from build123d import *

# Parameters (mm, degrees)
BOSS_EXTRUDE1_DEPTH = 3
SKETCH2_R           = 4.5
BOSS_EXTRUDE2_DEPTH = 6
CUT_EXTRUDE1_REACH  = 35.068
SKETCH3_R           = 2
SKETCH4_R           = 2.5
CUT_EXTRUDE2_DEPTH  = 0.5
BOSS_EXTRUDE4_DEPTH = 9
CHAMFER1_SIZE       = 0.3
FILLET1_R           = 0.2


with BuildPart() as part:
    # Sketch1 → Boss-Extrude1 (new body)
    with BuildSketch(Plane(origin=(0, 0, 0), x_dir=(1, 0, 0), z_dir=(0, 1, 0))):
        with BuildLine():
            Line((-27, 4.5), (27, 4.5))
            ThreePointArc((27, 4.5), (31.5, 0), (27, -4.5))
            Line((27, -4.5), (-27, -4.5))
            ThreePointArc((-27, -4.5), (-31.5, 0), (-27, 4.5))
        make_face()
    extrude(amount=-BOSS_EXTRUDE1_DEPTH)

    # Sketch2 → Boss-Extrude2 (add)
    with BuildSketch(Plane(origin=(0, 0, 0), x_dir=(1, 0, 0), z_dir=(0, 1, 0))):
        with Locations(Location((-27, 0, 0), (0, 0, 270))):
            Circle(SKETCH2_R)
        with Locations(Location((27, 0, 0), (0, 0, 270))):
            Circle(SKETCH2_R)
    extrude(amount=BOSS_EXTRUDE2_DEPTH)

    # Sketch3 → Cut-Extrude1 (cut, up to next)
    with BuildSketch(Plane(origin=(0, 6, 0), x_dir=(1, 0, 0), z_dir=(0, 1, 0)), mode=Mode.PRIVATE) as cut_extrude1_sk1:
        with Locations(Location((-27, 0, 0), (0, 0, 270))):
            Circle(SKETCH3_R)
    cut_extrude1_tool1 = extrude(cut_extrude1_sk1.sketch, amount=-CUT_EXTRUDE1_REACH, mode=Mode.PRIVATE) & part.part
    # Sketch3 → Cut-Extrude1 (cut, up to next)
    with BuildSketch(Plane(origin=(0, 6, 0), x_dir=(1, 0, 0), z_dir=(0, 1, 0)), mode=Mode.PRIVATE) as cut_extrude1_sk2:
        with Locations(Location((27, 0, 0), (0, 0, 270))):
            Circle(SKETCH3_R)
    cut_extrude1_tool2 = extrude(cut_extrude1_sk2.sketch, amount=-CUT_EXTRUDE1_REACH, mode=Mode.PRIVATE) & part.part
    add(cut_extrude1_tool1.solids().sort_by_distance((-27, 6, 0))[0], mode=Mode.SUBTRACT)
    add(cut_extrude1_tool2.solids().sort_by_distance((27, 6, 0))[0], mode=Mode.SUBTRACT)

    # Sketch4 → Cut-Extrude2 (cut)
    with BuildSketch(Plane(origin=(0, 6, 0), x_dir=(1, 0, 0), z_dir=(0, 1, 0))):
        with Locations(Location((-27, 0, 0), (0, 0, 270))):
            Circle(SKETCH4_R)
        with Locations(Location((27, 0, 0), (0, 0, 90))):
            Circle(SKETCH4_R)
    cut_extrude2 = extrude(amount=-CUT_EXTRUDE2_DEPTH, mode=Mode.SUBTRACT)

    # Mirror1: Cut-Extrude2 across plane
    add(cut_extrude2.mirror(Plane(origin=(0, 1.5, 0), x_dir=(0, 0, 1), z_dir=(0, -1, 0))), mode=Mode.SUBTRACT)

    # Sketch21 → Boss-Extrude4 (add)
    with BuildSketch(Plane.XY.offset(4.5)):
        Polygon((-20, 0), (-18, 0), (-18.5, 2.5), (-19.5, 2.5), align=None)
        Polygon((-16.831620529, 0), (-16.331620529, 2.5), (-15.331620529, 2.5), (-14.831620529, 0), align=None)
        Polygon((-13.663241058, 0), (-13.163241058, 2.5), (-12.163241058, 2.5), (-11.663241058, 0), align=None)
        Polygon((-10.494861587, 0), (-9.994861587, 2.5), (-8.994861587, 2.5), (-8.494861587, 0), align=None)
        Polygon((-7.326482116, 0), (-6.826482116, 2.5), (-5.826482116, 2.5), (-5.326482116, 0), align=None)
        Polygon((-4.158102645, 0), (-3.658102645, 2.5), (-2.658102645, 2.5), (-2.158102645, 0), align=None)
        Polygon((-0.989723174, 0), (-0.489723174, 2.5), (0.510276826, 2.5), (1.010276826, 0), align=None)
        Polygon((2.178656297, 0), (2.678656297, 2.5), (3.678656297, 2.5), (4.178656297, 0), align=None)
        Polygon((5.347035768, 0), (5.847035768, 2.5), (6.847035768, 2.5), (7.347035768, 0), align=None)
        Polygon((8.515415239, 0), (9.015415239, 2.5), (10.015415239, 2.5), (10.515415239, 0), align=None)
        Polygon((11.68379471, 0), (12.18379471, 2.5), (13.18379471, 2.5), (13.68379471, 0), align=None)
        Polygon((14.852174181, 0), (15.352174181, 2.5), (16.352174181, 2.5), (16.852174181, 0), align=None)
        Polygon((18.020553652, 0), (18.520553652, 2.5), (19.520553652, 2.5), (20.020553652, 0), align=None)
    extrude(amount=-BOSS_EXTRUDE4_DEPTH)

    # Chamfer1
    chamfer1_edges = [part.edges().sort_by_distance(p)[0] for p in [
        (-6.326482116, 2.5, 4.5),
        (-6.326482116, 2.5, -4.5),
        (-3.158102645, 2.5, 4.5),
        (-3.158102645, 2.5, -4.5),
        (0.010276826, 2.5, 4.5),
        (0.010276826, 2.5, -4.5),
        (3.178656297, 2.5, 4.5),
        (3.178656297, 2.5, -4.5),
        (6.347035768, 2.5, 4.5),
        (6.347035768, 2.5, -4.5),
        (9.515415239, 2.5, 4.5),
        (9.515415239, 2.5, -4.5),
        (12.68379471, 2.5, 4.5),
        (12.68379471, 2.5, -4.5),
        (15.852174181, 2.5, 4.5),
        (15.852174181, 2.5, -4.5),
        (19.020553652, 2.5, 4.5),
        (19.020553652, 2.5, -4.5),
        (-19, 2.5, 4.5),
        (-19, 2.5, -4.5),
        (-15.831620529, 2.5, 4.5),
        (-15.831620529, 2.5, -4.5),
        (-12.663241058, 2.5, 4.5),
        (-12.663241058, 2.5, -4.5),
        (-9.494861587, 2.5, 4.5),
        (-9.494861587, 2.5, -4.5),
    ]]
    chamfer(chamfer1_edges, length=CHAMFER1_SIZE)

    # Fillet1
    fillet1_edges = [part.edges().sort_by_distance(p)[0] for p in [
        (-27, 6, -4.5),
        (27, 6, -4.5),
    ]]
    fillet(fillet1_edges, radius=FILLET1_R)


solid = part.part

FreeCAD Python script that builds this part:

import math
import FreeCAD as App
import Part
import Sketcher
from FreeCAD import Vector


def edges_at(feature, points):
    """Names of the edges that pass closest to the given points."""
    edges = feature.Shape.Edges
    near = lambda p: min(range(len(edges)), key=lambda i: edges[i].distToShape(Part.Vertex(*p))[0])
    return sorted({f"Edge{near(p) + 1}" for p in points})

doc = App.newDocument("Part")
body = doc.addObject("PartDesign::Body", "Body")

# Sketch on XZ plane
sketch1 = body.newObject("Sketcher::SketchObject", "Sketch")
sketch1.AttachmentSupport = (doc.getObject("XZ_Plane"), [""])
sketch1.MapMode = "FlatFace"
sketch1.addGeometry(Part.LineSegment(Vector(27, -4.5, 0), Vector(-27, -4.5, 0)), False)
sketch1.addGeometry(Part.ArcOfCircle(Part.Circle(Vector(-27, 0, 0), Vector(0, 0, 1), 4.5), math.radians(90), math.radians(270)), False)
sketch1.addGeometry(Part.LineSegment(Vector(-27, 4.5, 0), Vector(27, 4.5, 0)), False)
sketch1.addGeometry(Part.ArcOfCircle(Part.Circle(Vector(27, 0, 0), Vector(0, 0, 1), 4.5), math.radians(-90), math.radians(90)), False)
sketch1.addConstraint(Sketcher.Constraint("Tangent", 0, 2, 1, 2))
sketch1.addConstraint(Sketcher.Constraint("Tangent", 1, 1, 2, 1))
sketch1.addConstraint(Sketcher.Constraint("Tangent", 2, 2, 3, 2))
sketch1.addConstraint(Sketcher.Constraint("Tangent", 3, 1, 0, 1))
sketch1.addConstraint(Sketcher.Constraint("Horizontal", 0))
sketch1.addConstraint(Sketcher.Constraint("Horizontal", 2))
sketch1.addConstraint(Sketcher.Constraint("Symmetric", 1, 3, 3, 3, -1, 1))
sketch1.addConstraint(Sketcher.Constraint("Radius", 1, 4.5))
sketch1.addConstraint(Sketcher.Constraint("DistanceX", 0, 2, 0, 1, 54.0))
pad1 = body.newObject("PartDesign::Pad", "Pad")
pad1.Profile = sketch1
pad1.Length = 3

# Sketch on XZ plane
sketch2 = body.newObject("Sketcher::SketchObject", "Sketch001")
sketch2.AttachmentSupport = (doc.getObject("XZ_Plane"), [""])
sketch2.MapMode = "FlatFace"
sketch2.addGeometry(Part.Circle(Vector(-27, 0, 0), Vector(0, 0, 1), 4.5), False)
sketch2.addGeometry(Part.Circle(Vector(27, 0, 0), Vector(0, 0, 1), 4.5), False)
sketch2.addConstraint(Sketcher.Constraint("Equal", 0, 1))
sketch2.addConstraint(Sketcher.Constraint("Symmetric", 0, 3, 1, 3, -1, 1))
sketch2.addConstraint(Sketcher.Constraint("PointOnObject", 0, 3, -1))
sketch2.addConstraint(Sketcher.Constraint("Diameter", 0, 9.0))
sketch2.addConstraint(Sketcher.Constraint("DistanceX", 0, 3, -1, 1, 27.0))
pad2 = body.newObject("PartDesign::Pad", "Pad001")
pad2.Profile = sketch2
pad2.Length = 6
pad2.Reversed = True

# Sketch on XZ plane
sketch3 = body.newObject("Sketcher::SketchObject", "Sketch002")
sketch3.AttachmentSupport = (doc.getObject("XZ_Plane"), [""])
sketch3.MapMode = "FlatFace"
sketch3.AttachmentOffset = App.Placement(Vector(0, 0, -6), App.Rotation())
sketch3.addGeometry(Part.Circle(Vector(-27, 0, 0), Vector(0, 0, 1), 2), False)
sketch3.addConstraint(Sketcher.Constraint("PointOnObject", 0, 3, -1))
sketch3.addConstraint(Sketcher.Constraint("Diameter", 0, 4.0))
sketch3.addConstraint(Sketcher.Constraint("DistanceX", 0, 3, -1, 1, 27.0))
pocket1 = body.newObject("PartDesign::Pocket", "Pocket")
pocket1.Profile = sketch3
pocket1.Type = "UpToFirst"
pocket1.Reversed = True

# Sketch on XZ plane
sketch4 = body.newObject("Sketcher::SketchObject", "Sketch003")
sketch4.AttachmentSupport = (doc.getObject("XZ_Plane"), [""])
sketch4.MapMode = "FlatFace"
sketch4.AttachmentOffset = App.Placement(Vector(0, 0, -6), App.Rotation())
sketch4.addGeometry(Part.Circle(Vector(27, 0, 0), Vector(0, 0, 1), 2), False)
sketch4.addConstraint(Sketcher.Constraint("PointOnObject", 0, 3, -1))
sketch4.addConstraint(Sketcher.Constraint("Diameter", 0, 4.0))
sketch4.addConstraint(Sketcher.Constraint("DistanceX", -1, 1, 0, 3, 27.0))
pocket2 = body.newObject("PartDesign::Pocket", "Pocket001")
pocket2.Profile = sketch4
pocket2.Type = "UpToFirst"
pocket2.Reversed = True

# Sketch on XZ plane
sketch5 = body.newObject("Sketcher::SketchObject", "Sketch004")
sketch5.AttachmentSupport = (doc.getObject("XZ_Plane"), [""])
sketch5.MapMode = "FlatFace"
sketch5.AttachmentOffset = App.Placement(Vector(0, 0, -6), App.Rotation())
sketch5.addGeometry(Part.Circle(Vector(-27, 0, 0), Vector(0, 0, 1), 2.5), False)
sketch5.addGeometry(Part.Circle(Vector(27, 0, 0), Vector(0, 0, 1), 2.5), False)
sketch5.addConstraint(Sketcher.Constraint("Equal", 0, 1))
sketch5.addConstraint(Sketcher.Constraint("Symmetric", 0, 3, 1, 3, -1, 1))
sketch5.addConstraint(Sketcher.Constraint("PointOnObject", 0, 3, -1))
sketch5.addConstraint(Sketcher.Constraint("Diameter", 0, 5.0))
sketch5.addConstraint(Sketcher.Constraint("DistanceX", 0, 3, -1, 1, 27.0))
pocket3 = body.newObject("PartDesign::Pocket", "Pocket002")
pocket3.Profile = sketch5
pocket3.Length = 0.5
pocket3.Reversed = True
doc.recompute()

datumplane = body.newObject("PartDesign::Plane", "DatumPlane")
datumplane.AttachmentSupport = (doc.getObject("XZ_Plane"), [""])
datumplane.MapMode = "FlatFace"
datumplane.AttachmentOffset = App.Placement(Vector(0, 0, -1.5), App.Rotation())
mirrored = body.newObject("PartDesign::Mirrored", "Mirrored")
mirrored.Originals = [pocket3]
mirrored.MirrorPlane = (datumplane, [""])
body.Tip = mirrored

# Sketch on XY plane
sketch6 = body.newObject("Sketcher::SketchObject", "Sketch005")
sketch6.AttachmentSupport = (doc.getObject("XY_Plane"), [""])
sketch6.MapMode = "FlatFace"
sketch6.AttachmentOffset = App.Placement(Vector(0, 0, 4.5), App.Rotation())
sketch6.addGeometry(Part.LineSegment(Vector(-20, 0, 0), Vector(-18, 0, 0)), False)
sketch6.addGeometry(Part.LineSegment(Vector(-18, 0, 0), Vector(-18.5, 2.5, 0)), False)
sketch6.addGeometry(Part.LineSegment(Vector(-18.5, 2.5, 0), Vector(-19.5, 2.5, 0)), False)
sketch6.addGeometry(Part.LineSegment(Vector(-19.5, 2.5, 0), Vector(-20, 0, 0)), False)
sketch6.addGeometry(Part.LineSegment(Vector(-16.3, 2.5, 0), Vector(-16.8, 0, 0)), False)
sketch6.addGeometry(Part.LineSegment(Vector(-16.8, 0, 0), Vector(-14.8, 0, 0)), False)
sketch6.addGeometry(Part.LineSegment(Vector(-14.8, 0, 0), Vector(-15.3, 2.5, 0)), False)
sketch6.addGeometry(Part.LineSegment(Vector(-15.3, 2.5, 0), Vector(-16.3, 2.5, 0)), False)
sketch6.addGeometry(Part.LineSegment(Vector(-13.2, 2.5, 0), Vector(-13.7, 0, 0)), False)
sketch6.addGeometry(Part.LineSegment(Vector(-13.7, 0, 0), Vector(-11.7, 0, 0)), False)
sketch6.addGeometry(Part.LineSegment(Vector(-11.7, 0, 0), Vector(-12.2, 2.5, 0)), False)
sketch6.addGeometry(Part.LineSegment(Vector(-12.2, 2.5, 0), Vector(-13.2, 2.5, 0)), False)
sketch6.addGeometry(Part.LineSegment(Vector(-10, 2.5, 0), Vector(-10.5, 0, 0)), False)
sketch6.addGeometry(Part.LineSegment(Vector(-10.5, 0, 0), Vector(-8.5, 0, 0)), False)
sketch6.addGeometry(Part.LineSegment(Vector(-8.5, 0, 0), Vector(-9, 2.5, 0)), False)
sketch6.addGeometry(Part.LineSegment(Vector(-9, 2.5, 0), Vector(-10, 2.5, 0)), False)
sketch6.addGeometry(Part.LineSegment(Vector(-6.8, 2.5, 0), Vector(-7.3, 0, 0)), False)
sketch6.addGeometry(Part.LineSegment(Vector(-7.3, 0, 0), Vector(-5.3, 0, 0)), False)
sketch6.addGeometry(Part.LineSegment(Vector(-5.3, 0, 0), Vector(-5.8, 2.5, 0)), False)
sketch6.addGeometry(Part.LineSegment(Vector(-5.8, 2.5, 0), Vector(-6.8, 2.5, 0)), False)
sketch6.addGeometry(Part.LineSegment(Vector(-3.7, 2.5, 0), Vector(-4.2, 0, 0)), False)
sketch6.addGeometry(Part.LineSegment(Vector(-4.2, 0, 0), Vector(-2.2, 0, 0)), False)
sketch6.addGeometry(Part.LineSegment(Vector(-2.2, 0, 0), Vector(-2.7, 2.5, 0)), False)
sketch6.addGeometry(Part.LineSegment(Vector(-2.7, 2.5, 0), Vector(-3.7, 2.5, 0)), False)
sketch6.addGeometry(Part.LineSegment(Vector(-0.5, 2.5, 0), Vector(-1, 0, 0)), False)
sketch6.addGeometry(Part.LineSegment(Vector(-1, 0, 0), Vector(1, 0, 0)), False)
sketch6.addGeometry(Part.LineSegment(Vector(1, 0, 0), Vector(0.5, 2.5, 0)), False)
sketch6.addGeometry(Part.LineSegment(Vector(0.5, 2.5, 0), Vector(-0.5, 2.5, 0)), False)
sketch6.addGeometry(Part.LineSegment(Vector(2.7, 2.5, 0), Vector(2.2, 0, 0)), False)
sketch6.addGeometry(Part.LineSegment(Vector(2.2, 0, 0), Vector(4.2, 0, 0)), False)
sketch6.addGeometry(Part.LineSegment(Vector(4.2, 0, 0), Vector(3.7, 2.5, 0)), False)
sketch6.addGeometry(Part.LineSegment(Vector(3.7, 2.5, 0), Vector(2.7, 2.5, 0)), False)
sketch6.addGeometry(Part.LineSegment(Vector(5.8, 2.5, 0), Vector(5.3, 0, 0)), False)
sketch6.addGeometry(Part.LineSegment(Vector(5.3, 0, 0), Vector(7.3, 0, 0)), False)
sketch6.addGeometry(Part.LineSegment(Vector(7.3, 0, 0), Vector(6.8, 2.5, 0)), False)
sketch6.addGeometry(Part.LineSegment(Vector(6.8, 2.5, 0), Vector(5.8, 2.5, 0)), False)
sketch6.addGeometry(Part.LineSegment(Vector(9, 2.5, 0), Vector(8.5, 0, 0)), False)
sketch6.addGeometry(Part.LineSegment(Vector(8.5, 0, 0), Vector(10.5, 0, 0)), False)
sketch6.addGeometry(Part.LineSegment(Vector(10.5, 0, 0), Vector(10, 2.5, 0)), False)
sketch6.addGeometry(Part.LineSegment(Vector(10, 2.5, 0), Vector(9, 2.5, 0)), False)
sketch6.addGeometry(Part.LineSegment(Vector(12.2, 2.5, 0), Vector(11.7, 0, 0)), False)
sketch6.addGeometry(Part.LineSegment(Vector(11.7, 0, 0), Vector(13.7, 0, 0)), False)
sketch6.addGeometry(Part.LineSegment(Vector(13.7, 0, 0), Vector(13.2, 2.5, 0)), False)
sketch6.addGeometry(Part.LineSegment(Vector(13.2, 2.5, 0), Vector(12.2, 2.5, 0)), False)
sketch6.addGeometry(Part.LineSegment(Vector(15.4, 2.5, 0), Vector(14.9, 0, 0)), False)
sketch6.addGeometry(Part.LineSegment(Vector(14.9, 0, 0), Vector(16.9, 0, 0)), False)
sketch6.addGeometry(Part.LineSegment(Vector(16.9, 0, 0), Vector(16.4, 2.5, 0)), False)
sketch6.addGeometry(Part.LineSegment(Vector(16.4, 2.5, 0), Vector(15.4, 2.5, 0)), False)
sketch6.addGeometry(Part.LineSegment(Vector(18.5, 2.5, 0), Vector(18, 0, 0)), False)
sketch6.addGeometry(Part.LineSegment(Vector(18, 0, 0), Vector(20, 0, 0)), False)
sketch6.addGeometry(Part.LineSegment(Vector(20, 0, 0), Vector(19.5, 2.5, 0)), False)
sketch6.addGeometry(Part.LineSegment(Vector(19.5, 2.5, 0), Vector(18.5, 2.5, 0)), False)
sketch6.addConstraint(Sketcher.Constraint("Coincident", 0, 2, 1, 1))
sketch6.addConstraint(Sketcher.Constraint("Coincident", 1, 2, 2, 1))
sketch6.addConstraint(Sketcher.Constraint("Coincident", 2, 2, 3, 1))
sketch6.addConstraint(Sketcher.Constraint("Coincident", 3, 2, 0, 1))
sketch6.addConstraint(Sketcher.Constraint("Coincident", 4, 2, 5, 1))
sketch6.addConstraint(Sketcher.Constraint("Coincident", 5, 2, 6, 1))
sketch6.addConstraint(Sketcher.Constraint("Coincident", 6, 2, 7, 1))
sketch6.addConstraint(Sketcher.Constraint("Coincident", 7, 2, 4, 1))
sketch6.addConstraint(Sketcher.Constraint("Coincident", 8, 2, 9, 1))
sketch6.addConstraint(Sketcher.Constraint("Coincident", 9, 2, 10, 1))
sketch6.addConstraint(Sketcher.Constraint("Coincident", 10, 2, 11, 1))
sketch6.addConstraint(Sketcher.Constraint("Coincident", 11, 2, 8, 1))
sketch6.addConstraint(Sketcher.Constraint("Coincident", 12, 2, 13, 1))
sketch6.addConstraint(Sketcher.Constraint("Coincident", 13, 2, 14, 1))
sketch6.addConstraint(Sketcher.Constraint("Coincident", 14, 2, 15, 1))
sketch6.addConstraint(Sketcher.Constraint("Coincident", 15, 2, 12, 1))
sketch6.addConstraint(Sketcher.Constraint("Coincident", 16, 2, 17, 1))
sketch6.addConstraint(Sketcher.Constraint("Coincident", 17, 2, 18, 1))
sketch6.addConstraint(Sketcher.Constraint("Coincident", 18, 2, 19, 1))
sketch6.addConstraint(Sketcher.Constraint("Coincident", 19, 2, 16, 1))
sketch6.addConstraint(Sketcher.Constraint("Coincident", 20, 2, 21, 1))
sketch6.addConstraint(Sketcher.Constraint("Coincident", 21, 2, 22, 1))
sketch6.addConstraint(Sketcher.Constraint("Coincident", 22, 2, 23, 1))
sketch6.addConstraint(Sketcher.Constraint("Coincident", 23, 2, 20, 1))
sketch6.addConstraint(Sketcher.Constraint("Coincident", 24, 2, 25, 1))
sketch6.addConstraint(Sketcher.Constraint("Coincident", 25, 2, 26, 1))
sketch6.addConstraint(Sketcher.Constraint("Coincident", 26, 2, 27, 1))
sketch6.addConstraint(Sketcher.Constraint("Coincident", 27, 2, 24, 1))
sketch6.addConstraint(Sketcher.Constraint("Coincident", 28, 2, 29, 1))
sketch6.addConstraint(Sketcher.Constraint("Coincident", 29, 2, 30, 1))
sketch6.addConstraint(Sketcher.Constraint("Coincident", 30, 2, 31, 1))
sketch6.addConstraint(Sketcher.Constraint("Coincident", 31, 2, 28, 1))
sketch6.addConstraint(Sketcher.Constraint("Coincident", 32, 2, 33, 1))
sketch6.addConstraint(Sketcher.Constraint("Coincident", 33, 2, 34, 1))
sketch6.addConstraint(Sketcher.Constraint("Coincident", 34, 2, 35, 1))
sketch6.addConstraint(Sketcher.Constraint("Coincident", 35, 2, 32, 1))
sketch6.addConstraint(Sketcher.Constraint("Coincident", 36, 2, 37, 1))
sketch6.addConstraint(Sketcher.Constraint("Coincident", 37, 2, 38, 1))
sketch6.addConstraint(Sketcher.Constraint("Coincident", 38, 2, 39, 1))
sketch6.addConstraint(Sketcher.Constraint("Coincident", 39, 2, 36, 1))
sketch6.addConstraint(Sketcher.Constraint("Coincident", 40, 2, 41, 1))
sketch6.addConstraint(Sketcher.Constraint("Coincident", 41, 2, 42, 1))
sketch6.addConstraint(Sketcher.Constraint("Coincident", 42, 2, 43, 1))
sketch6.addConstraint(Sketcher.Constraint("Coincident", 43, 2, 40, 1))
sketch6.addConstraint(Sketcher.Constraint("Coincident", 44, 2, 45, 1))
sketch6.addConstraint(Sketcher.Constraint("Coincident", 45, 2, 46, 1))
sketch6.addConstraint(Sketcher.Constraint("Coincident", 46, 2, 47, 1))
sketch6.addConstraint(Sketcher.Constraint("Coincident", 47, 2, 44, 1))
sketch6.addConstraint(Sketcher.Constraint("Coincident", 48, 2, 49, 1))
sketch6.addConstraint(Sketcher.Constraint("Coincident", 49, 2, 50, 1))
sketch6.addConstraint(Sketcher.Constraint("Coincident", 50, 2, 51, 1))
sketch6.addConstraint(Sketcher.Constraint("Coincident", 51, 2, 48, 1))
sketch6.addConstraint(Sketcher.Constraint("Horizontal", 0))
sketch6.addConstraint(Sketcher.Constraint("Horizontal", 2))
sketch6.addConstraint(Sketcher.Constraint("Horizontal", 5))
sketch6.addConstraint(Sketcher.Constraint("Horizontal", 7))
sketch6.addConstraint(Sketcher.Constraint("Horizontal", 9))
sketch6.addConstraint(Sketcher.Constraint("Horizontal", 11))
sketch6.addConstraint(Sketcher.Constraint("Horizontal", 13))
sketch6.addConstraint(Sketcher.Constraint("Horizontal", 15))
sketch6.addConstraint(Sketcher.Constraint("Horizontal", 17))
sketch6.addConstraint(Sketcher.Constraint("Horizontal", 19))
sketch6.addConstraint(Sketcher.Constraint("Horizontal", 21))
sketch6.addConstraint(Sketcher.Constraint("Horizontal", 23))
sketch6.addConstraint(Sketcher.Constraint("Horizontal", 25))
sketch6.addConstraint(Sketcher.Constraint("Horizontal", 27))
sketch6.addConstraint(Sketcher.Constraint("Horizontal", 29))
sketch6.addConstraint(Sketcher.Constraint("Horizontal", 31))
sketch6.addConstraint(Sketcher.Constraint("Horizontal", 33))
sketch6.addConstraint(Sketcher.Constraint("Horizontal", 35))
sketch6.addConstraint(Sketcher.Constraint("Horizontal", 37))
sketch6.addConstraint(Sketcher.Constraint("Horizontal", 39))
sketch6.addConstraint(Sketcher.Constraint("Horizontal", 41))
sketch6.addConstraint(Sketcher.Constraint("Horizontal", 43))
sketch6.addConstraint(Sketcher.Constraint("Horizontal", 45))
sketch6.addConstraint(Sketcher.Constraint("Horizontal", 47))
sketch6.addConstraint(Sketcher.Constraint("Horizontal", 49))
sketch6.addConstraint(Sketcher.Constraint("Horizontal", 51))
sketch6.addConstraint(Sketcher.Constraint("PointOnObject", 0, 2, -1))
sketch6.addConstraint(Sketcher.Constraint("PointOnObject", 4, 2, -1))
sketch6.addConstraint(Sketcher.Constraint("PointOnObject", 8, 2, -1))
sketch6.addConstraint(Sketcher.Constraint("PointOnObject", 12, 2, -1))
sketch6.addConstraint(Sketcher.Constraint("PointOnObject", 16, 2, -1))
sketch6.addConstraint(Sketcher.Constraint("PointOnObject", 20, 2, -1))
sketch6.addConstraint(Sketcher.Constraint("PointOnObject", 24, 2, -1))
sketch6.addConstraint(Sketcher.Constraint("PointOnObject", 28, 2, -1))
sketch6.addConstraint(Sketcher.Constraint("PointOnObject", 32, 2, -1))
sketch6.addConstraint(Sketcher.Constraint("PointOnObject", 36, 2, -1))
sketch6.addConstraint(Sketcher.Constraint("PointOnObject", 40, 2, -1))
sketch6.addConstraint(Sketcher.Constraint("PointOnObject", 44, 2, -1))
sketch6.addConstraint(Sketcher.Constraint("PointOnObject", 48, 2, -1))
sketch6.addConstraint(Sketcher.Constraint("Parallel", 3, 4))
sketch6.addConstraint(Sketcher.Constraint("Parallel", 1, 6))
sketch6.addConstraint(Sketcher.Constraint("Parallel", 4, 8))
sketch6.addConstraint(Sketcher.Constraint("Parallel", 6, 10))
sketch6.addConstraint(Sketcher.Constraint("Parallel", 8, 12))
sketch6.addConstraint(Sketcher.Constraint("Parallel", 10, 14))
sketch6.addConstraint(Sketcher.Constraint("Parallel", 12, 16))
sketch6.addConstraint(Sketcher.Constraint("Parallel", 14, 18))
sketch6.addConstraint(Sketcher.Constraint("Parallel", 16, 20))
sketch6.addConstraint(Sketcher.Constraint("Parallel", 18, 22))
sketch6.addConstraint(Sketcher.Constraint("Parallel", 20, 24))
sketch6.addConstraint(Sketcher.Constraint("Parallel", 22, 26))
sketch6.addConstraint(Sketcher.Constraint("Parallel", 24, 28))
sketch6.addConstraint(Sketcher.Constraint("Parallel", 26, 30))
sketch6.addConstraint(Sketcher.Constraint("Parallel", 28, 32))
sketch6.addConstraint(Sketcher.Constraint("Parallel", 30, 34))
sketch6.addConstraint(Sketcher.Constraint("Parallel", 32, 36))
sketch6.addConstraint(Sketcher.Constraint("Parallel", 34, 38))
sketch6.addConstraint(Sketcher.Constraint("Parallel", 36, 40))
sketch6.addConstraint(Sketcher.Constraint("Parallel", 38, 42))
sketch6.addConstraint(Sketcher.Constraint("Parallel", 40, 44))
sketch6.addConstraint(Sketcher.Constraint("Parallel", 42, 46))
sketch6.addConstraint(Sketcher.Constraint("Parallel", 44, 48))
sketch6.addConstraint(Sketcher.Constraint("Parallel", 46, 50))
sketch6.addConstraint(Sketcher.Constraint("Horizontal", 2, 2, 6, 2))
sketch6.addConstraint(Sketcher.Constraint("Horizontal", 7, 2, 10, 2))
sketch6.addConstraint(Sketcher.Constraint("Horizontal", 11, 2, 14, 2))
sketch6.addConstraint(Sketcher.Constraint("Horizontal", 15, 2, 18, 2))
sketch6.addConstraint(Sketcher.Constraint("Horizontal", 19, 2, 22, 2))
sketch6.addConstraint(Sketcher.Constraint("Horizontal", 23, 2, 26, 2))
sketch6.addConstraint(Sketcher.Constraint("Horizontal", 27, 2, 30, 2))
sketch6.addConstraint(Sketcher.Constraint("Horizontal", 31, 2, 34, 2))
sketch6.addConstraint(Sketcher.Constraint("Horizontal", 35, 2, 38, 2))
sketch6.addConstraint(Sketcher.Constraint("Horizontal", 39, 2, 42, 2))
sketch6.addConstraint(Sketcher.Constraint("Horizontal", 43, 2, 46, 2))
sketch6.addConstraint(Sketcher.Constraint("Horizontal", 47, 2, 50, 2))
sketch6.addConstraint(Sketcher.Constraint("Equal", 0, 5))
sketch6.addConstraint(Sketcher.Constraint("Equal", 5, 9))
sketch6.addConstraint(Sketcher.Constraint("Equal", 9, 13))
sketch6.addConstraint(Sketcher.Constraint("Equal", 13, 17))
sketch6.addConstraint(Sketcher.Constraint("Equal", 17, 21))
sketch6.addConstraint(Sketcher.Constraint("Equal", 21, 25))
sketch6.addConstraint(Sketcher.Constraint("Equal", 25, 29))
sketch6.addConstraint(Sketcher.Constraint("Equal", 29, 33))
sketch6.addConstraint(Sketcher.Constraint("Equal", 33, 37))
sketch6.addConstraint(Sketcher.Constraint("Equal", 37, 41))
sketch6.addConstraint(Sketcher.Constraint("Equal", 41, 45))
sketch6.addConstraint(Sketcher.Constraint("Equal", 45, 49))
sketch6.addConstraint(Sketcher.Constraint("Equal", 1, 3))
sketch6.addConstraint(Sketcher.Constraint("DistanceX", 0, 1, 0, 2, 2.0))
sketch6.addConstraint(Sketcher.Constraint("DistanceX", 2, 2, 2, 1, 1.0))
sketch6.addConstraint(Sketcher.Constraint("DistanceX", 0, 2, -1, 1, 18.0))
sketch6.addConstraint(Sketcher.Constraint("DistanceY", -1, 1, 1, 2, 2.5))
sketch6.addConstraint(Sketcher.Constraint("DistanceX", 4, 2, -1, 1, 16.831621))
sketch6.addConstraint(Sketcher.Constraint("DistanceX", 8, 2, -1, 1, 13.663241))
sketch6.addConstraint(Sketcher.Constraint("DistanceX", 12, 2, -1, 1, 10.494862))
sketch6.addConstraint(Sketcher.Constraint("DistanceX", 13, 2, 16, 2, 1.168379))
sketch6.addConstraint(Sketcher.Constraint("DistanceX", 17, 2, 20, 2, 1.168379))
sketch6.addConstraint(Sketcher.Constraint("DistanceX", 21, 2, 24, 2, 1.168379))
sketch6.addConstraint(Sketcher.Constraint("DistanceX", 25, 2, 28, 2, 1.168379))
sketch6.addConstraint(Sketcher.Constraint("DistanceX", 29, 2, 32, 2, 1.168379))
sketch6.addConstraint(Sketcher.Constraint("DistanceX", 33, 2, 36, 2, 1.168379))
sketch6.addConstraint(Sketcher.Constraint("DistanceX", 37, 2, 40, 2, 1.168379))
sketch6.addConstraint(Sketcher.Constraint("DistanceX", 41, 2, 44, 2, 1.168379))
sketch6.addConstraint(Sketcher.Constraint("DistanceX", 45, 2, 48, 2, 1.168379))
pad3 = body.newObject("PartDesign::Pad", "Pad002")
pad3.Profile = sketch6
pad3.Length = 9
pad3.Reversed = True
doc.recompute()

chamfer = body.newObject("PartDesign::Chamfer", "Chamfer")
chamfer.Base = (pad3, edges_at(pad3, [
    (-6.326, 2.5, 4.5),
    (-6.326, 2.5, -4.5),
    (-3.158, 2.5, 4.5),
    (-3.158, 2.5, -4.5),
    (0.01, 2.5, 4.5),
    (0.01, 2.5, -4.5),
    (3.179, 2.5, 4.5),
    (3.179, 2.5, -4.5),
    (6.347, 2.5, 4.5),
    (6.347, 2.5, -4.5),
    (9.515, 2.5, 4.5),
    (9.515, 2.5, -4.5),
    (12.684, 2.5, 4.5),
    (12.684, 2.5, -4.5),
    (15.852, 2.5, 4.5),
    (15.852, 2.5, -4.5),
    (19.021, 2.5, 4.5),
    (19.021, 2.5, -4.5),
    (-19, 2.5, 4.5),
    (-19, 2.5, -4.5),
    (-15.832, 2.5, 4.5),
    (-15.832, 2.5, -4.5),
    (-12.663, 2.5, 4.5),
    (-12.663, 2.5, -4.5),
    (-9.495, 2.5, 4.5),
    (-9.495, 2.5, -4.5),
]))
chamfer.Size = 0.3
doc.recompute()

fillet = body.newObject("PartDesign::Fillet", "Fillet")
fillet.Base = (chamfer, edges_at(chamfer, [(-27, 6, -4.5), (27, 6, -4.5)]))
fillet.Radius = 0.2

doc.recompute()
